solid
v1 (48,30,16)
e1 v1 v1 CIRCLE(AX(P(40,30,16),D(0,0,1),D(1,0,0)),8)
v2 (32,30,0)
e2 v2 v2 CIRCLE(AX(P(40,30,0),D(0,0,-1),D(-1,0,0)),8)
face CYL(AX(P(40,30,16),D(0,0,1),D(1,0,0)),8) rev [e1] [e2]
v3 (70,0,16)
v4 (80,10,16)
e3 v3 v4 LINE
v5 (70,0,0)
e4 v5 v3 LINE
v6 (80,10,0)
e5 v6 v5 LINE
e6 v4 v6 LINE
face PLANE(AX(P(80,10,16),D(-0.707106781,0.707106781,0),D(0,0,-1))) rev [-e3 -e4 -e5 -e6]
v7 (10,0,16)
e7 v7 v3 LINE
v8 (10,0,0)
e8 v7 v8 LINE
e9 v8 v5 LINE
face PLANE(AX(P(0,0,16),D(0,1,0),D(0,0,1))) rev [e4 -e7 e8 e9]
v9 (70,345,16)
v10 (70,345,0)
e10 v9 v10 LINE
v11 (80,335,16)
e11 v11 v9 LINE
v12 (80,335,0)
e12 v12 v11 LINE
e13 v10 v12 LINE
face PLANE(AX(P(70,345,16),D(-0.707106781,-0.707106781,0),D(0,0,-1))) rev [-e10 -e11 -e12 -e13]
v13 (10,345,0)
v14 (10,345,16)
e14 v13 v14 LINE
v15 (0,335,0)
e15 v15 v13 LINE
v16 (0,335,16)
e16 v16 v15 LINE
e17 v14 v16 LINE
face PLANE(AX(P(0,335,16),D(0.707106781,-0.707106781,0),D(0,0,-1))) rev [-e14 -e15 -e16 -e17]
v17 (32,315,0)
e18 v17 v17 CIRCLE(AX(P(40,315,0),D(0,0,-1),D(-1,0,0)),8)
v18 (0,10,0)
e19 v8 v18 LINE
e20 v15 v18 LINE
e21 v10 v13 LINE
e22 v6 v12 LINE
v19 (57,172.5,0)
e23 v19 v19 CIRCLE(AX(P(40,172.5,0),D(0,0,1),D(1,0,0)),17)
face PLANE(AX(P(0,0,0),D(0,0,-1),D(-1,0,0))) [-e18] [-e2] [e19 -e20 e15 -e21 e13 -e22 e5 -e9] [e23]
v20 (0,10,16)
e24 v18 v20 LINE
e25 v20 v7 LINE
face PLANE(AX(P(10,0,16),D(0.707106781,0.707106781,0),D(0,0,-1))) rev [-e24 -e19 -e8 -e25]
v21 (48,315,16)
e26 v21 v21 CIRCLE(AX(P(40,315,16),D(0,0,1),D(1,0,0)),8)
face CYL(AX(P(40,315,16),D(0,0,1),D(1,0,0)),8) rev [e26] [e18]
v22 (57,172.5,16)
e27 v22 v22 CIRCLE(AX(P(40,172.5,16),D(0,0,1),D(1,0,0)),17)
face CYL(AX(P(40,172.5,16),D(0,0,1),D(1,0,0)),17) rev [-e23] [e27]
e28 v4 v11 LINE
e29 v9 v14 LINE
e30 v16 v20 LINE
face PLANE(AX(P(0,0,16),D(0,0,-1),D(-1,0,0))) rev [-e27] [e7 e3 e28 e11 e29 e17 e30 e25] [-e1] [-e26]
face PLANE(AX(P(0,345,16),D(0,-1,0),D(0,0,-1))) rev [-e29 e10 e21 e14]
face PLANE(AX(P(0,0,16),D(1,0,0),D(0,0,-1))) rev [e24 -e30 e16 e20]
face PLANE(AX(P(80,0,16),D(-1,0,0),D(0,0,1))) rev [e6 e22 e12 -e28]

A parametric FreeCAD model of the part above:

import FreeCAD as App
import Part
import Sketcher

V = App.Vector
Q = App.Units.Quantity


def edges_at(feature, points):
    """Names of the edges that pass closest to the given points."""
    edges = feature.Shape.Edges
    near = lambda p: min(range(len(edges)), key=lambda i: edges[i].distToShape(Part.Vertex(*p))[0])
    return sorted({f"Edge{near(p) + 1}" for p in points})

doc = App.newDocument("Part")
params = doc.addObject("Spreadsheet::Sheet", "Params")
for row, (alias, value) in enumerate([
    ("sketch1_width", "80 mm"),
    ("sketch1_height", "345 mm"),
    ("pad1_length", "16 mm"),
    ("sketch2_diameter", "16 mm"),
    ("hole_diameter", "16 mm"),
    ("hole_depth", "38 mm"),
    ("chamfer_size", "10 mm"),
    ("sketch3_diameter", "34 mm"),
    ("hole2_diameter", "34 mm"),
], start=1):
    params.set(f"A{row}", alias)
    params.set(f"B{row}", "=" + value)
    params.setAlias(f"B{row}", alias)

body = doc.addObject("PartDesign::Body", "Body")

# Sketch on XY plane
sketch1 = doc.addObject("Sketcher::SketchObject", "Sketch")
body.addObject(sketch1)
sketch1.AttachmentSupport = (doc.XY_Plane, [""])
sketch1.MapMode = "FlatFace"
sketch1.addGeometry(Part.LineSegment(V(0, 345, 0), V(0, 0, 0)), False)
sketch1.addGeometry(Part.LineSegment(V(0, 0, 0), V(80, 0, 0)), False)
sketch1.addGeometry(Part.LineSegment(V(80, 0, 0), V(80, 345, 0)), False)
sketch1.addGeometry(Part.LineSegment(V(80, 345, 0), V(0, 345, 0)), False)
sketch1.addConstraint(Sketcher.Constraint("Coincident", 0, 2, 1, 1))
sketch1.addConstraint(Sketcher.Constraint("Coincident", 1, 2, 2, 1))
sketch1.addConstraint(Sketcher.Constraint("Coincident", 2, 2, 3, 1))
sketch1.addConstraint(Sketcher.Constraint("Coincident", 3, 2, 0, 1))
sketch1.addConstraint(Sketcher.Constraint("Vertical", 0))
sketch1.addConstraint(Sketcher.Constraint("Horizontal", 1))
sketch1.addConstraint(Sketcher.Constraint("Vertical", 2))
sketch1.addConstraint(Sketcher.Constraint("Horizontal", 3))
sketch1.addConstraint(Sketcher.Constraint("Coincident", 0, 2, -1, 1))
sketch1.addConstraint(Sketcher.Constraint("DistanceX", 1, 1, 1, 2, Q("80 mm")))
sketch1.addConstraint(Sketcher.Constraint("DistanceY", 0, 2, 0, 1, Q("345 mm")))
sketch1.setExpression("Constraints[9]", "Params.sketch1_width")
sketch1.setExpression("Constraints[10]", "Params.sketch1_height")
pad1 = doc.addObject("PartDesign::Pad", "Pad")
body.addObject(pad1)
pad1.Profile = sketch1
pad1.setExpression("Length", "Params.pad1_length")

# Sketch on XY plane
sketch2 = doc.addObject("Sketcher::SketchObject", "Sketch001")
body.addObject(sketch2)
sketch2.AttachmentSupport = (doc.XY_Plane, [""])
sketch2.MapMode = "FlatFace"
sketch2.AttachmentOffset = App.Placement(V(0, 0, 16), App.Rotation())
sketch2.addGeometry(Part.Circle(V(40, 315, 0), V(0, 0, 1), 8), False)
sketch2.addGeometry(Part.Circle(V(40, 30, 0), V(0, 0, 1), 8), False)
sketch2.addConstraint(Sketcher.Constraint("Equal", 0, 1))
sketch2.addConstraint(Sketcher.Constraint("Vertical", 0, 3, 1, 3))
sketch2.addConstraint(Sketcher.Constraint("Diameter", 0, Q("16 mm")))
sketch2.addConstraint(Sketcher.Constraint("DistanceX", -1, 1, 0, 3, Q("40 mm")))
sketch2.addConstraint(Sketcher.Constraint("DistanceY", -1, 1, 0, 3, Q("315 mm")))
sketch2.addConstraint(Sketcher.Constraint("DistanceY", -1, 1, 1, 3, Q("30 mm")))
sketch2.setExpression("Constraints[2]", "Params.sketch2_diameter")
doc.recompute()
hole = doc.addObject("PartDesign::Hole", "Hole")
body.addObject(hole)
hole.Profile = sketch2
hole.ThreadType = "None"
hole.setExpression("Diameter", "Params.hole_diameter")
hole.DepthType = "Dimension"
hole.setExpression("Depth", "Params.hole_depth")
hole.DrillPoint = "Angled"
hole.DrillPointAngle = 118
doc.recompute()

chamfer = doc.addObject("PartDesign::Chamfer", "Chamfer")
body.addObject(chamfer)
chamfer.Base = (hole, edges_at(hole, [
    (0, 345, 8),
    (80, 345, 8),
    (80, 0, 8),
    (0, 0, 8),
]))
chamfer.setExpression("Size", "Params.chamfer_size")

# Sketch on XY plane
sketch3 = doc.addObject("Sketcher::SketchObject", "Sketch002")
body.addObject(sketch3)
sketch3.AttachmentSupport = (doc.XY_Plane, [""])
sketch3.MapMode = "FlatFace"
sketch3.AttachmentOffset = App.Placement(V(0, 0, 16), App.Rotation())
sketch3.addGeometry(Part.Circle(V(40, 172, 0), V(0, 0, 1), 17), False)
sketch3.addConstraint(Sketcher.Constraint("Diameter", 0, Q("34 mm")))
sketch3.addConstraint(Sketcher.Constraint("DistanceX", -1, 1, 0, 3, Q("40 mm")))
sketch3.addConstraint(Sketcher.Constraint("DistanceY", -1, 1, 0, 3, Q("172.5 mm")))
sketch3.setExpression("Constraints[0]", "Params.sketch3_diameter")
doc.recompute()
hole2 = doc.addObject("PartDesign::Hole", "Hole001")
body.addObject(hole2)
hole2.Profile = sketch3
hole2.ThreadType = "None"
hole2.setExpression("Diameter", "Params.hole2_diameter")
hole2.DepthType = "ThroughAll"

doc.recompute()
